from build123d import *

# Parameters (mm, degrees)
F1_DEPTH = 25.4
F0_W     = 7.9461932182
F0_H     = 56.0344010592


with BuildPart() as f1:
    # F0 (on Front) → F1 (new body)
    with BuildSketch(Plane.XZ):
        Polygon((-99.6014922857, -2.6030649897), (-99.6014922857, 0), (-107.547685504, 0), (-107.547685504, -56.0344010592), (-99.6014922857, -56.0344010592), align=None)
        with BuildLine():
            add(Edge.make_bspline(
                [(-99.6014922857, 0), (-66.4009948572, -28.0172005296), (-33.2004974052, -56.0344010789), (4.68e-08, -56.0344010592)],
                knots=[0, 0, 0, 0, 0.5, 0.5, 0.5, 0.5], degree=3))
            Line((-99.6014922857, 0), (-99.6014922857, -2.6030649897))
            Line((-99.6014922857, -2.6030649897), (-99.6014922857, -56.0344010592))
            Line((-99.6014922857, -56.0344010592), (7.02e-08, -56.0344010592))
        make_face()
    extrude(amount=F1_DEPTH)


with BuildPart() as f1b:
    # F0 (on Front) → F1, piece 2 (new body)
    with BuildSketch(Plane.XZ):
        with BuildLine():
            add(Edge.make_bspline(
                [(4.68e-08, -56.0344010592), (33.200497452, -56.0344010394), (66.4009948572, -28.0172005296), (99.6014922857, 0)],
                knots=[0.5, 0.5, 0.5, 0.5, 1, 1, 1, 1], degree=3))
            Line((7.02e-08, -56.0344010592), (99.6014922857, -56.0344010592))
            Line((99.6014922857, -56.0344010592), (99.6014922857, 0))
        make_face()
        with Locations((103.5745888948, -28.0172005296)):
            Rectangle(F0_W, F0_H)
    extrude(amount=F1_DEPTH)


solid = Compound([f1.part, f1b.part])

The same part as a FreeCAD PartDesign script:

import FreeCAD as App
import Part
import Sketcher
Q = App.Units.Quantity

doc = App.newDocument("Part")
body = doc.addObject("PartDesign::Body", "Body")

sketch1 = doc.addObject("Sketcher::SketchObject", "Sketch")
body.addObject(sketch1)
sketch1.AttachmentSupport = (doc.XZ_Plane, [""])
sketch1.MapMode = "FlatFace"
sketch1.addGeometry(Part.LineSegment(App.Vector(-99.601492, 0, 0), App.Vector(-107.547686, 0, 0)), False)
sketch1.addGeometry(Part.LineSegment(App.Vector(-107.547686, 0, 0), App.Vector(-107.547686, -56.034401, 0)), False)
sketch1.addGeometry(Part.LineSegment(App.Vector(-107.547686, -56.034401, 0), App.Vector(0, -56.034401, 0)), False)
sketch1.addGeometry(Part.BSplineCurve([App.Vector(-99.601492, 0, 0), App.Vector(-66.400995, -28.017201, 0), App.Vector(-33.200497, -56.034401, 0), App.Vector(0, -56.034401, 0)], [4, 4], [0, 0.5], False, 3, [1, 1, 1, 1], False), False)
sketch1.addConstraint(Sketcher.Constraint("Block", 3))
sketch1.addConstraint(Sketcher.Constraint("Coincident", 0, 2, 1, 1))
sketch1.addConstraint(Sketcher.Constraint("Coincident", 1, 2, 2, 1))
sketch1.addConstraint(Sketcher.Constraint("Coincident", 2, 2, 3, 2))
sketch1.addConstraint(Sketcher.Constraint("Coincident", 3, 1, 0, 1))
sketch1.addConstraint(Sketcher.Constraint("Horizontal", 0))
sketch1.addConstraint(Sketcher.Constraint("Vertical", 1))
sketch1.addConstraint(Sketcher.Constraint("Horizontal", 2))
sketch1.addConstraint(Sketcher.Constraint("DistanceX", 0, 2, 0, 1, Q("7.946193 mm")))
pad1 = doc.addObject("PartDesign::Pad", "Pad")
body.addObject(pad1)
pad1.Profile = sketch1
pad1.Length = Q("1 in")
body2 = doc.addObject("PartDesign::Body", "Body001")

sketch2 = doc.addObject("Sketcher::SketchObject", "Sketch001")
body2.addObject(sketch2)
sketch2.AttachmentSupport = (doc.getObject("XZ_Plane001"), [""])
sketch2.MapMode = "FlatFace"
sketch2.addGeometry(Part.BSplineCurve([App.Vector(0, -56.034401, 0), App.Vector(33.200497, -56.034401, 0), App.Vector(66.400995, -28.017201, 0), App.Vector(99.601492, 0, 0)], [4, 4], [0.5, 1], False, 3, [1, 1, 1, 1], False), False)
sketch2.addGeometry(Part.LineSegment(App.Vector(0, -56.034401, 0), App.Vector(107.547686, -56.034401, 0)), False)
sketch2.addGeometry(Part.LineSegment(App.Vector(107.547686, -56.034401, 0), App.Vector(107.547686, 0, 0)), False)
sketch2.addGeometry(Part.LineSegment(App.Vector(107.547686, 0, 0), App.Vector(99.601492, 0, 0)), False)
sketch2.addConstraint(Sketcher.Constraint("Block", 0))
sketch2.addConstraint(Sketcher.Constraint("Coincident", 0, 1, 1, 1))
sketch2.addConstraint(Sketcher.Constraint("Coincident", 1, 2, 2, 1))
sketch2.addConstraint(Sketcher.Constraint("Coincident", 2, 2, 3, 1))
sketch2.addConstraint(Sketcher.Constraint("Coincident", 3, 2, 0, 2))
sketch2.addConstraint(Sketcher.Constraint("Horizontal", 1))
sketch2.addConstraint(Sketcher.Constraint("Vertical", 2))
sketch2.addConstraint(Sketcher.Constraint("Horizontal", 3))
sketch2.addConstraint(Sketcher.Constraint("DistanceX", 1, 1, 1, 2, Q("107.547685 mm")))
pad2 = doc.addObject("PartDesign::Pad", "Pad001")
body2.addObject(pad2)
pad2.Profile = sketch2
pad2.Length = Q("1 in")

doc.recompute()
